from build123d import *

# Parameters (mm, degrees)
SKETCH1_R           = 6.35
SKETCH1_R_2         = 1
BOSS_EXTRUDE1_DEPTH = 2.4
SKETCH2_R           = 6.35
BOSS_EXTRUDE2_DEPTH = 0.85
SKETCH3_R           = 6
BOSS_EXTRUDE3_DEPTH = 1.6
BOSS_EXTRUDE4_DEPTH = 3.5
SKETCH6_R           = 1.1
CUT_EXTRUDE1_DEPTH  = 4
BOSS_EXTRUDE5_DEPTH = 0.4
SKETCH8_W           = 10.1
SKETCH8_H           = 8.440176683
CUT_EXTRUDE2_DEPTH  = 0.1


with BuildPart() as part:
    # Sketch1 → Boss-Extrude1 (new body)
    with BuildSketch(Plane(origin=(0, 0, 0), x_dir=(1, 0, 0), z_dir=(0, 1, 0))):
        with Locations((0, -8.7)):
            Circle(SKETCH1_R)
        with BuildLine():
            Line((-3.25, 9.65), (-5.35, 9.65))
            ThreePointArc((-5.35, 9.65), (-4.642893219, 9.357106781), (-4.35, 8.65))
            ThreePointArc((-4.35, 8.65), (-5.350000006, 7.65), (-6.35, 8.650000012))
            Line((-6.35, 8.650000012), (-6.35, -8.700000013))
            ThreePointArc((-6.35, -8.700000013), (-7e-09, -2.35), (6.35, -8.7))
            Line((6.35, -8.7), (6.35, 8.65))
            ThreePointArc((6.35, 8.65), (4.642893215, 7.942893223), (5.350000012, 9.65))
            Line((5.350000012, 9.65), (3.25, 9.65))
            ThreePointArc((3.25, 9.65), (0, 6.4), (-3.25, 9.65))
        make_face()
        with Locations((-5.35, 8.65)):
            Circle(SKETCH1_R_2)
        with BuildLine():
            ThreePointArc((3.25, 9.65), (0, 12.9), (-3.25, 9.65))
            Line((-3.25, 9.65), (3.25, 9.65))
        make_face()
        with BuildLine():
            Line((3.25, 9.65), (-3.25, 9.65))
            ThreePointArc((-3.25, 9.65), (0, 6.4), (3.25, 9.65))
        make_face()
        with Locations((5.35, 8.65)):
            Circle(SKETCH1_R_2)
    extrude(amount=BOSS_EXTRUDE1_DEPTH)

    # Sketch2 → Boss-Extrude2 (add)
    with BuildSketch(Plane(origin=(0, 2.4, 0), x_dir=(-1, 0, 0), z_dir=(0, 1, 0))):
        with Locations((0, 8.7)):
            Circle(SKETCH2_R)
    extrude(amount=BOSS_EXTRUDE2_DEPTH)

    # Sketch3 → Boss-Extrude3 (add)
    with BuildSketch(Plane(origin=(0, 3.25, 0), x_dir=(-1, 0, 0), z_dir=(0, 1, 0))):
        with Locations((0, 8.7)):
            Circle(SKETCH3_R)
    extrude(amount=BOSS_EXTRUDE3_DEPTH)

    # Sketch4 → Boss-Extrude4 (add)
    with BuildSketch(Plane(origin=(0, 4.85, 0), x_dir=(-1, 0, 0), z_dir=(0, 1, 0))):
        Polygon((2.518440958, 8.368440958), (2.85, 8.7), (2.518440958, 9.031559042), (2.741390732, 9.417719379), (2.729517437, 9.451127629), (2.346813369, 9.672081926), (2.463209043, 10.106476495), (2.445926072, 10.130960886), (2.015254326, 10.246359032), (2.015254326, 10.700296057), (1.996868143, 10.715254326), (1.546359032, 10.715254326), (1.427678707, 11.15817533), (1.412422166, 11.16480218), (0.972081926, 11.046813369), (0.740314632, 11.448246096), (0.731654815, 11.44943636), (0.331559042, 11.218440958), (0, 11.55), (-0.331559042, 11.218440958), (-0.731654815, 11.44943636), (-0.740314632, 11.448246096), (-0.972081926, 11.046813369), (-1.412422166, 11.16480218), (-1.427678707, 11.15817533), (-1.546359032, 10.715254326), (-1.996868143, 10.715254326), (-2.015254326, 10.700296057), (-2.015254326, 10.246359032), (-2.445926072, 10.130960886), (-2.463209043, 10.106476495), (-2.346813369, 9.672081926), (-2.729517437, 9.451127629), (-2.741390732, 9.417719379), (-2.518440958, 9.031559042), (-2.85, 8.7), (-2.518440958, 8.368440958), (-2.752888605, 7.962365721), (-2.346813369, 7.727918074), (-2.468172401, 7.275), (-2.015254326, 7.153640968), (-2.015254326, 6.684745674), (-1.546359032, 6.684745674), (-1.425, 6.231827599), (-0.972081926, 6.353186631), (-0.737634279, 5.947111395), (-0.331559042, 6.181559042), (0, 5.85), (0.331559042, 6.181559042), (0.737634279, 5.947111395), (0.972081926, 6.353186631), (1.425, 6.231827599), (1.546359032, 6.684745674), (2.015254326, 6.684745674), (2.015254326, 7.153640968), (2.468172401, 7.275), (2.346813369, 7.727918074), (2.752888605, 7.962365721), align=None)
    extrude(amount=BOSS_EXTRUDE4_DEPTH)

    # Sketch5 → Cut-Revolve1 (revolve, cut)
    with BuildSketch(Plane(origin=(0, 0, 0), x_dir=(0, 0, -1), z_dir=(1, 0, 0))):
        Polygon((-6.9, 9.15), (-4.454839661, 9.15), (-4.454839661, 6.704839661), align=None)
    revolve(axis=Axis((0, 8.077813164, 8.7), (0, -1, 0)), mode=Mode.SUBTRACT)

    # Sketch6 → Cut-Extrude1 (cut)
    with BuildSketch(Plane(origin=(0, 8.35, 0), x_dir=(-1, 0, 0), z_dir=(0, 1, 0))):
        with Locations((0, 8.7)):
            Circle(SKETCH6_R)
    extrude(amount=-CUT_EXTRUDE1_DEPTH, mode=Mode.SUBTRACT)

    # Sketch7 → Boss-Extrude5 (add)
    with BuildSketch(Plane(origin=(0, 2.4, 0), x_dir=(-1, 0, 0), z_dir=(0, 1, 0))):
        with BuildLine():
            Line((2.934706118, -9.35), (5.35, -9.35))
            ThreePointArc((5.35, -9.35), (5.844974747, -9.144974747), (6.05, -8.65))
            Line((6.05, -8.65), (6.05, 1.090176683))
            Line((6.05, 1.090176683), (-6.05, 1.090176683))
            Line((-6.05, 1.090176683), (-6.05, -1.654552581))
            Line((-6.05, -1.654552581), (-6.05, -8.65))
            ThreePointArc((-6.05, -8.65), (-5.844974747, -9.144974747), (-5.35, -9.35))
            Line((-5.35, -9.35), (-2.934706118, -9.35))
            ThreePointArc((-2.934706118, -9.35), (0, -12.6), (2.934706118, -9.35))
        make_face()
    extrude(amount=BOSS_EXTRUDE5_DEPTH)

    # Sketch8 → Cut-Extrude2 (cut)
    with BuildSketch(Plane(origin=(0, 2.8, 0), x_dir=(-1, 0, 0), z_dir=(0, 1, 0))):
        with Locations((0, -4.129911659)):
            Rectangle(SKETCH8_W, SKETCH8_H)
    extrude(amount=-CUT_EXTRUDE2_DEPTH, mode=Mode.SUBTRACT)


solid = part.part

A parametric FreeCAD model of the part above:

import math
import FreeCAD as App
import Part
import Sketcher
Q = App.Units.Quantity

doc = App.newDocument("Part")
body = doc.addObject("PartDesign::Body", "Body")

sketch1 = body.newObject("Sketcher::SketchObject", "Sketch")
sketch1.AttachmentSupport = (doc.getObject("XZ_Plane"), [""])
sketch1.MapMode = "FlatFace"
sketch1.addGeometry([
    Part.ArcOfCircle(Part.Circle(App.Vector(-5.3, -8.7, 0), App.Vector(0, 0, 1), 1), math.radians(-180), math.radians(-90)),
    Part.LineSegment(App.Vector(-6.3, -8.7, 0), App.Vector(-6.3, 8.7, 0)),
    Part.ArcOfCircle(Part.Circle(App.Vector(0, 8.7, 0), App.Vector(0, 0, 1), 6.3), math.radians(0), math.radians(180)),
    Part.LineSegment(App.Vector(6.3, 8.7, 0), App.Vector(6.3, -8.7, 0)),
    Part.ArcOfCircle(Part.Circle(App.Vector(5.3, -8.7, 0), App.Vector(0, 0, 1), 1), math.radians(-90), math.radians(0)),
    Part.LineSegment(App.Vector(5.4, -9.7, 0), App.Vector(3.2, -9.7, 0)),
    Part.ArcOfCircle(Part.Circle(App.Vector(0, -9.7, 0), App.Vector(0, 0, 1), 3.2), math.radians(180), math.radians(360)),
    Part.LineSegment(App.Vector(-3.2, -9.7, 0), App.Vector(-5.3, -9.7, 0)),
], False)
sketch1.addConstraint([
    Sketcher.Constraint("Tangent", 0, 1, 1, 1),
    Sketcher.Constraint("Tangent", 1, 2, 2, 2),
    Sketcher.Constraint("Tangent", 2, 1, 3, 1),
    Sketcher.Constraint("Tangent", 3, 2, 4, 2),
    Sketcher.Constraint("Tangent", 4, 1, 5, 1),
    Sketcher.Constraint("Coincident", 5, 2, 6, 2),
    Sketcher.Constraint("Coincident", 6, 1, 7, 1),
    Sketcher.Constraint("Tangent", 7, 2, 0, 2),
    Sketcher.Constraint("Vertical", 1),
    Sketcher.Constraint("Vertical", 3),
    Sketcher.Constraint("Horizontal", 5),
    Sketcher.Constraint("Horizontal", 7),
    Sketcher.Constraint("Equal", 0, 4),
    Sketcher.Constraint("Symmetric", 0, 3, 4, 3, -2),
    Sketcher.Constraint("PointOnObject", 6, 3, -2),
    Sketcher.Constraint("Horizontal", 6, 3, 4, 1),
    Sketcher.Constraint("Radius", 0, 1.0),
    Sketcher.Constraint("Radius", 2, 6.35),
    Sketcher.Constraint("Radius", 6, 3.25),
    Sketcher.Constraint("DistanceY", 1, 1, 1, 2, 17.35),
    Sketcher.Constraint("DistanceY", -1, 1, 2, 3, 8.7),
])
pad1 = body.newObject("PartDesign::Pad", "Pad")
pad1.Profile = sketch1
pad1.Length = 2.4
pad1.Reversed = True

sketch2 = body.newObject("Sketcher::SketchObject", "Sketch001")
sketch2.AttachmentSupport = (doc.getObject("XZ_Plane"), [""])
sketch2.MapMode = "FlatFace"
sketch2.AttachmentOffset = App.Placement(App.Vector(0, 0, -2.4), App.Rotation())
sketch2.addGeometry(Part.Circle(App.Vector(0, 9, 0), App.Vector(0, 0, 1), 6), False)
sketch2.addConstraint([
    Sketcher.Constraint("PointOnObject", 0, 3, -2),
    Sketcher.Constraint("Diameter", 0, 12.7),
    Sketcher.Constraint("DistanceY", -1, 1, 0, 3, 8.7),
])
pad2 = body.newObject("PartDesign::Pad", "Pad001")
pad2.Profile = sketch2
pad2.Length = 0.85
pad2.Reversed = True

sketch3 = body.newObject("Sketcher::SketchObject", "Sketch002")
sketch3.AttachmentSupport = (doc.getObject("XZ_Plane"), [""])
sketch3.MapMode = "FlatFace"
sketch3.AttachmentOffset = App.Placement(App.Vector(0, 0, -3.25), App.Rotation())
sketch3.addGeometry(Part.Circle(App.Vector(0, 9, 0), App.Vector(0, 0, 1), 6), False)
sketch3.addConstraint([
    Sketcher.Constraint("PointOnObject", 0, 3, -2),
    Sketcher.Constraint("Diameter", 0, 12.0),
    Sketcher.Constraint("DistanceY", -1, 1, 0, 3, 8.7),
])
pad3 = body.newObject("PartDesign::Pad", "Pad002")
pad3.Profile = sketch3
pad3.Length = 1.6
pad3.Reversed = True

sketch4 = body.newObject("Sketcher::SketchObject", "Sketch003")
sketch4.AttachmentSupport = (doc.getObject("XZ_Plane"), [""])
sketch4.MapMode = "FlatFace"
sketch4.AttachmentOffset = App.Placement(App.Vector(0, 0, -4.85), App.Rotation())
sketch4.addGeometry([
    Part.LineSegment(App.Vector(-2.518, 8.368, 0), App.Vector(-2.85, 8.7, 0)),
    Part.LineSegment(App.Vector(-2.85, 8.7, 0), App.Vector(-2.518, 9.032, 0)),
    Part.LineSegment(App.Vector(-2.518, 9.032, 0), App.Vector(-2.741, 9.418, 0)),
    Part.LineSegment(App.Vector(-2.741, 9.418, 0), App.Vector(-2.73, 9.451, 0)),
    Part.LineSegment(App.Vector(-2.73, 9.451, 0), App.Vector(-2.347, 9.672, 0)),
    Part.LineSegment(App.Vector(-2.347, 9.672, 0), App.Vector(-2.463, 10.106, 0)),
    Part.LineSegment(App.Vector(-2.463, 10.106, 0), App.Vector(-2.446, 10.131, 0)),
    Part.LineSegment(App.Vector(-2.446, 10.131, 0), App.Vector(-2.015, 10.246, 0)),
    Part.LineSegment(App.Vector(-2.015, 10.246, 0), App.Vector(-2.015, 10.7, 0)),
    Part.LineSegment(App.Vector(-2.015, 10.7, 0), App.Vector(-1.997, 10.715, 0)),
    Part.LineSegment(App.Vector(-1.997, 10.715, 0), App.Vector(-1.546, 10.715, 0)),
    Part.LineSegment(App.Vector(-1.546, 10.715, 0), App.Vector(-1.428, 11.158, 0)),
    Part.LineSegment(App.Vector(-1.428, 11.158, 0), App.Vector(-1.412, 11.165, 0)),
    Part.LineSegment(App.Vector(-1.412, 11.165, 0), App.Vector(-0.972, 11.047, 0)),
    Part.LineSegment(App.Vector(-0.972, 11.047, 0), App.Vector(-0.74, 11.448, 0)),
    Part.LineSegment(App.Vector(-0.74, 11.448, 0), App.Vector(-0.732, 11.449, 0)),
    Part.LineSegment(App.Vector(-0.732, 11.449, 0), App.Vector(-0.332, 11.218, 0)),
    Part.LineSegment(App.Vector(-0.332, 11.218, 0), App.Vector(0, 11.55, 0)),
    Part.LineSegment(App.Vector(0, 11.55, 0), App.Vector(0.332, 11.218, 0)),
    Part.LineSegment(App.Vector(0.332, 11.218, 0), App.Vector(0.732, 11.449, 0)),
    Part.LineSegment(App.Vector(0.732, 11.449, 0), App.Vector(0.74, 11.448, 0)),
    Part.LineSegment(App.Vector(0.74, 11.448, 0), App.Vector(0.972, 11.047, 0)),
    Part.LineSegment(App.Vector(0.972, 11.047, 0), App.Vector(1.412, 11.165, 0)),
    Part.LineSegment(App.Vector(1.412, 11.165, 0), App.Vector(1.428, 11.158, 0)),
    Part.LineSegment(App.Vector(1.428, 11.158, 0), App.Vector(1.546, 10.715, 0)),
    Part.LineSegment(App.Vector(1.546, 10.715, 0), App.Vector(1.997, 10.715, 0)),
    Part.LineSegment(App.Vector(1.997, 10.715, 0), App.Vector(2.015, 10.7, 0)),
    Part.LineSegment(App.Vector(2.015, 10.7, 0), App.Vector(2.015, 10.246, 0)),
    Part.LineSegment(App.Vector(2.015, 10.246, 0), App.Vector(2.446, 10.131, 0)),
    Part.LineSegment(App.Vector(2.446, 10.131, 0), App.Vector(2.463, 10.106, 0)),
    Part.LineSegment(App.Vector(2.463, 10.106, 0), App.Vector(2.347, 9.672, 0)),
    Part.LineSegment(App.Vector(2.347, 9.672, 0), App.Vector(2.73, 9.451, 0)),
    Part.LineSegment(App.Vector(2.73, 9.451, 0), App.Vector(2.741, 9.418, 0)),
    Part.LineSegment(App.Vector(2.741, 9.418, 0), App.Vector(2.518, 9.032, 0)),
    Part.LineSegment(App.Vector(2.518, 9.032, 0), App.Vector(2.85, 8.7, 0)),
    Part.LineSegment(App.Vector(2.85, 8.7, 0), App.Vector(2.518, 8.368, 0)),
    Part.LineSegment(App.Vector(2.518, 8.368, 0), App.Vector(2.753, 7.962, 0)),
    Part.LineSegment(App.Vector(2.753, 7.962, 0), App.Vector(2.347, 7.728, 0)),
    Part.LineSegment(App.Vector(2.347, 7.728, 0), App.Vector(2.468, 7.275, 0)),
    Part.LineSegment(App.Vector(2.468, 7.275, 0), App.Vector(2.015, 7.154, 0)),
    Part.LineSegment(App.Vector(2.015, 7.154, 0), App.Vector(2.015, 6.685, 0)),
    Part.LineSegment(App.Vector(2.015, 6.685, 0), App.Vector(1.546, 6.685, 0)),
    Part.LineSegment(App.Vector(1.546, 6.685, 0), App.Vector(1.425, 6.232, 0)),
    Part.LineSegment(App.Vector(1.425, 6.232, 0), App.Vector(0.972, 6.353, 0)),
    Part.LineSegment(App.Vector(0.972, 6.353, 0), App.Vector(0.738, 5.947, 0)),
    Part.LineSegment(App.Vector(0.738, 5.947, 0), App.Vector(0.332, 6.182, 0)),
    Part.LineSegment(App.Vector(0.332, 6.182, 0), App.Vector(0, 5.85, 0)),
    Part.LineSegment(App.Vector(0, 5.85, 0), App.Vector(-0.332, 6.182, 0)),
    Part.LineSegment(App.Vector(-0.332, 6.182, 0), App.Vector(-0.738, 5.947, 0)),
    Part.LineSegment(App.Vector(-0.738, 5.947, 0), App.Vector(-0.972, 6.353, 0)),
    Part.LineSegment(App.Vector(-0.972, 6.353, 0), App.Vector(-1.425, 6.232, 0)),
    Part.LineSegment(App.Vector(-1.425, 6.232, 0), App.Vector(-1.546, 6.685, 0)),
    Part.LineSegment(App.Vector(-1.546, 6.685, 0), App.Vector(-2.015, 6.685, 0)),
    Part.LineSegment(App.Vector(-2.015, 6.685, 0), App.Vector(-2.015, 7.154, 0)),
    Part.LineSegment(App.Vector(-2.015, 7.154, 0), App.Vector(-2.468, 7.275, 0)),
    Part.LineSegment(App.Vector(-2.468, 7.275, 0), App.Vector(-2.347, 7.728, 0)),
    Part.LineSegment(App.Vector(-2.347, 7.728, 0), App.Vector(-2.753, 7.962, 0)),
    Part.LineSegment(App.Vector(-2.753, 7.962, 0), App.Vector(-2.518, 8.368, 0)),
], False)
sketch4.addConstraint([
    Sketcher.Constraint("Coincident", 0, 2, 1, 1),
    Sketcher.Constraint("Coincident", 1, 2, 2, 1),
    Sketcher.Constraint("Coincident", 2, 2, 3, 1),
    Sketcher.Constraint("Coincident", 3, 2, 4, 1),
    Sketcher.Constraint("Coincident", 4, 2, 5, 1),
    Sketcher.Constraint("Coincident", 5, 2, 6, 1),
    Sketcher.Constraint("Coincident", 6, 2, 7, 1),
    Sketcher.Constraint("Coincident", 7, 2, 8, 1),
    Sketcher.Constraint("Coincident", 8, 2, 9, 1),
    Sketcher.Constraint("Coincident", 9, 2, 10, 1),
    Sketcher.Constraint("Coincident", 10, 2, 11, 1),
    Sketcher.Constraint("Coincident", 11, 2, 12, 1),
    Sketcher.Constraint("Coincident", 12, 2, 13, 1),
    Sketcher.Constraint("Coincident", 13, 2, 14, 1),
    Sketcher.Constraint("Coincident", 14, 2, 15, 1),
    Sketcher.Constraint("Coincident", 15, 2, 16, 1),
    Sketcher.Constraint("Coincident", 16, 2, 17, 1),
    Sketcher.Constraint("Coincident", 17, 2, 18, 1),
    Sketcher.Constraint("Coincident", 18, 2, 19, 1),
    Sketcher.Constraint("Coincident", 19, 2, 20, 1),
    Sketcher.Constraint("Coincident", 20, 2, 21, 1),
    Sketcher.Constraint("Coincident", 21, 2, 22, 1),
    Sketcher.Constraint("Coincident", 22, 2, 23, 1),
    Sketcher.Constraint("Coincident", 23, 2, 24, 1),
    Sketcher.Constraint("Coincident", 24, 2, 25, 1),
    Sketcher.Constraint("Coincident", 25, 2, 26, 1),
    Sketcher.Constraint("Coincident", 26, 2, 27, 1),
    Sketcher.Constraint("Coincident", 27, 2, 28, 1),
    Sketcher.Constraint("Coincident", 28, 2, 29, 1),
    Sketcher.Constraint("Coincident", 29, 2, 30, 1),
    Sketcher.Constraint("Coincident", 30, 2, 31, 1),
    Sketcher.Constraint("Coincident", 31, 2, 32, 1),
    Sketcher.Constraint("Coincident", 32, 2, 33, 1),
    Sketcher.Constraint("Coincident", 33, 2, 34, 1),
    Sketcher.Constraint("Coincident", 34, 2, 35, 1),
    Sketcher.Constraint("Coincident", 35, 2, 36, 1),
    Sketcher.Constraint("Coincident", 36, 2, 37, 1),
    Sketcher.Constraint("Coincident", 37, 2, 38, 1),
    Sketcher.Constraint("Coincident", 38, 2, 39, 1),
    Sketcher.Constraint("Coincident", 39, 2, 40, 1),
    Sketcher.Constraint("Coincident", 40, 2, 41, 1),
    Sketcher.Constraint("Coincident", 41, 2, 42, 1),
    Sketcher.Constraint("Coincident", 42, 2, 43, 1),
    Sketcher.Constraint("Coincident", 43, 2, 44, 1),
    Sketcher.Constraint("Coincident", 44, 2, 45, 1),
    Sketcher.Constraint("Coincident", 45, 2, 46, 1),
    Sketcher.Constraint("Coincident", 46, 2, 47, 1),
    Sketcher.Constraint("Coincident", 47, 2, 48, 1),
    Sketcher.Constraint("Coincident", 48, 2, 49, 1),
    Sketcher.Constraint("Coincident", 49, 2, 50, 1),
    Sketcher.Constraint("Coincident", 50, 2, 51, 1),
    Sketcher.Constraint("Coincident", 51, 2, 52, 1),
    Sketcher.Constraint("Coincident", 52, 2, 53, 1),
    Sketcher.Constraint("Coincident", 53, 2, 54, 1),
    Sketcher.Constraint("Coincident", 54, 2, 55, 1),
    Sketcher.Constraint("Coincident", 55, 2, 56, 1),
    Sketcher.Constraint("Coincident", 56, 2, 57, 1),
    Sketcher.Constraint("Coincident", 57, 2, 0, 1),
    Sketcher.Constraint("Vertical", 8),
    Sketcher.Constraint("Horizontal", 10),
    Sketcher.Constraint("Horizontal", 25),
    Sketcher.Constraint("Vertical", 27),
    Sketcher.Constraint("Vertical", 40),
    Sketcher.Constraint("Horizontal", 41),
    Sketcher.Constraint("Horizontal", 52),
    Sketcher.Constraint("Vertical", 53),
    Sketcher.Constraint("Symmetric", 16, 2, 18, 2, -2),
    Sketcher.Constraint("Symmetric", 15, 2, 19, 2, -2),
    Sketcher.Constraint("Symmetric", 14, 2, 20, 2, -2),
    Sketcher.Constraint("Symmetric", 13, 2, 21, 2, -2),
    Sketcher.Constraint("Symmetric", 12, 2, 22, 2, -2),
    Sketcher.Constraint("Symmetric", 11, 2, 23, 2, -2),
    Sketcher.Constraint("Symmetric", 10, 2, 24, 2, -2),
    Sketcher.Constraint("Symmetric", 8, 2, 26, 2, -2),
    Sketcher.Constraint("Symmetric", 6, 2, 28, 2, -2),
    Sketcher.Constraint("Symmetric", 5, 2, 29, 2, -2),
    Sketcher.Constraint("Symmetric", 4, 2, 30, 2, -2),
    Sketcher.Constraint("Symmetric", 3, 2, 31, 2, -2),
    Sketcher.Constraint("Symmetric", 2, 2, 32, 2, -2),
    Sketcher.Constraint("Symmetric", 1, 2, 33, 2, -2),
    Sketcher.Constraint("Symmetric", 0, 2, 34, 2, -2),
    Sketcher.Constraint("Symmetric", 45, 2, 47, 2, -2),
    Sketcher.Constraint("Symmetric", 44, 2, 48, 2, -2),
    Sketcher.Constraint("Symmetric", 43, 2, 49, 2, -2),
    Sketcher.Constraint("Symmetric", 42, 2, 50, 2, -2),
    Sketcher.Constraint("Symmetric", 41, 2, 51, 2, -2),
    Sketcher.Constraint("Symmetric", 39, 2, 53, 2, -2),
    Sketcher.Constraint("Symmetric", 38, 2, 54, 2, -2),
    Sketcher.Constraint("Symmetric", 37, 2, 55, 2, -2),
    Sketcher.Constraint("Symmetric", 36, 2, 56, 2, -2),
    Sketcher.Constraint("Symmetric", 35, 2, 57, 2, -2),
    Sketcher.Constraint("PointOnObject", 17, 2, -2),
    Sketcher.Constraint("PointOnObject", 46, 2, -2),
    Sketcher.Constraint("Perpendicular", 0, 1),
    Sketcher.Constraint("Perpendicular", 2, 4),
    Sketcher.Constraint("Perpendicular", 5, 7),
    Sketcher.Constraint("Perpendicular", 11, 13),
    Sketcher.Constraint("Perpendicular", 14, 16),
    Sketcher.Constraint("Parallel", 1, 17),
    Sketcher.Constraint("Perpendicular", 17, 18),
    Sketcher.Constraint("Parallel", 4, 19),
    Sketcher.Constraint("Parallel", 7, 22),
    Sketcher.Constraint("Parallel", 13, 28),
    Sketcher.Constraint("Parallel", 21, 36),
    Sketcher.Constraint("Perpendicular", 36, 37),
    Sketcher.Constraint("Parallel", 24, 38),
    Sketcher.Constraint("Perpendicular", 38, 39),
    Sketcher.Constraint("Parallel", 30, 42),
    Sketcher.Constraint("Perpendicular", 42, 43),
    Sketcher.Constraint("Parallel", 33, 44),
    Sketcher.Constraint("Perpendicular", 44, 45),
    Sketcher.Constraint("Parallel", 35, 46),
    Sketcher.Constraint("Vertical", 33, 2, 35, 2),
    Sketcher.Constraint("Vertical", 30, 2, 37, 2),
    Sketcher.Constraint("Vertical", 27, 2, 39, 2),
    Sketcher.Constraint("Vertical", 24, 2, 41, 2),
    Sketcher.Constraint("Vertical", 21, 2, 43, 2),
    Sketcher.Constraint("Vertical", 18, 2, 45, 2),
    Sketcher.Constraint("Equal", 10, 25),
    Sketcher.Constraint("Equal", 52, 40),
    Sketcher.Constraint("Equal", 1, 17),
    Sketcher.Constraint("Equal", 35, 36),
    Sketcher.Constraint("Equal", 36, 37),
    Sketcher.Constraint("Equal", 37, 38),
    Sketcher.Constraint("Equal", 38, 39),
    Sketcher.Constraint("Equal", 39, 42),
    Sketcher.Constraint("Equal", 42, 43),
    Sketcher.Constraint("Equal", 43, 44),
    Sketcher.Constraint("Equal", 44, 45),
    Sketcher.Constraint("Angle", 2, Q("120 deg")),
    Sketcher.Constraint("Angle", 5, Q("105 deg")),
    Sketcher.Constraint("DistanceY", -1, 1, 0, 2, 8.7),
    Sketcher.Constraint("DistanceX", 0, 2, -1, 1, 2.85),
    Sketcher.Constraint("DistanceY", -1, 1, 17, 2, 11.55),
    Sketcher.Constraint("DistanceY", -1, 1, 38, 2, 7.275),
    Sketcher.Constraint("Distance", 2, 0.4459),
    Sketcher.Constraint("DistanceX", 10, 1, 10, 2, 0.450509),
    Sketcher.Constraint("DistanceY", 1, 2, 6, 2, 1.099402),
    Sketcher.Constraint("DistanceY", 6, 2, 7, 2, 0.115398),
    Sketcher.Constraint("Distance", 4, 0.441909),
    Sketcher.Constraint("Distance", 5, 0.449718),
    Sketcher.Constraint("Distance", 6, 0.02997),
    Sketcher.Constraint("Distance", 15, 0.008741),
    Sketcher.Constraint("Distance", 16, 0.461991),
    Sketcher.Constraint("DistanceY", 8, 1, 8, 2, 0.453937),
    Sketcher.Constraint("DistanceX", 11, 2, -1, 1, 1.427679),
    Sketcher.Constraint("DistanceY", 8, 2, 9, 2, 0.014958),
    Sketcher.Constraint("DistanceX", 12, 2, 13, 2, 0.44034),
    Sketcher.Constraint("DistanceY", 13, 2, 11, 2, 0.111362),
])
pad4 = body.newObject("PartDesign::Pad", "Pad003")
pad4.Profile = sketch4
pad4.Length = 3.5
pad4.Reversed = True

sketch5 = body.newObject("Sketcher::SketchObject", "Sketch004")
sketch5.AttachmentSupport = (doc.getObject("YZ_Plane"), [""])
sketch5.MapMode = "FlatFace"
sketch5.addGeometry([
    Part.LineSegment(App.Vector(9.2, 4.5, 0), App.Vector(9.2, 6.9, 0)),
    Part.LineSegment(App.Vector(9.2, 6.9, 0), App.Vector(6.7, 4.5, 0)),
    Part.LineSegment(App.Vector(6.7, 4.5, 0), App.Vector(9.2, 4.5, 0)),
], False)
sketch5.addGeometry(Part.LineSegment(App.Vector(9.2, 8.7, 0), App.Vector(6.7, 8.7, 0)), True)
sketch5.addConstraint([
    Sketcher.Constraint("Coincident", 0, 2, 1, 1),
    Sketcher.Constraint("Coincident", 1, 2, 2, 1),
    Sketcher.Constraint("Coincident", 2, 2, 0, 1),
    Sketcher.Constraint("Vertical", 0),
    Sketcher.Constraint("Horizontal", 2),
    Sketcher.Constraint("Horizontal", 3),
    Sketcher.Constraint("Vertical", 2, 2, 3, 1),
    Sketcher.Constraint("Vertical", 1, 2, 3, 2),
    Sketcher.Constraint("Equal", 3, 0),
    Sketcher.Constraint("DistanceY", -1, 1, 0, 2, 6.9),
    Sketcher.Constraint("DistanceY", -1, 1, 3, 1, 8.7),
    Sketcher.Constraint("DistanceX", -1, 1, 0, 2, 9.15),
    Sketcher.Constraint("DistanceX", 2, 1, 2, 2, 2.44516),
])
groove = body.newObject("PartDesign::Groove", "Groove")
groove.Profile = sketch5
groove.ReferenceAxis = (sketch5, ["Axis0"])
groove.Angle = 360

sketch6 = body.newObject("Sketcher::SketchObject", "Sketch005")
sketch6.AttachmentSupport = (doc.getObject("XZ_Plane"), [""])
sketch6.MapMode = "FlatFace"
sketch6.AttachmentOffset = App.Placement(App.Vector(0, 0, -8.35), App.Rotation())
sketch6.addGeometry(Part.Circle(App.Vector(0, 8.7, 0), App.Vector(0, 0, 1), 1.1), False)
sketch6.addConstraint([
    Sketcher.Constraint("PointOnObject", 0, 3, -2),
    Sketcher.Constraint("Diameter", 0, 2.2),
    Sketcher.Constraint("DistanceY", -1, 1, 0, 3, 8.7),
])
pocket1 = body.newObject("PartDesign::Pocket", "Pocket")
pocket1.Profile = sketch6
pocket1.Length = 4
pocket1.Reversed = True

sketch7 = body.newObject("Sketcher::SketchObject", "Sketch006")
sketch7.AttachmentSupport = (doc.getObject("XZ_Plane"), [""])
sketch7.MapMode = "FlatFace"
sketch7.AttachmentOffset = App.Placement(App.Vector(0, 0, -2.4), App.Rotation())
sketch7.addGeometry([
    Part.LineSegment(App.Vector(-2.9, -9.3, 0), App.Vector(-5.3, -9.3, 0)),
    Part.ArcOfCircle(Part.Circle(App.Vector(-5.4, -8.7, 0), App.Vector(0, 0, 1), 0.7), math.radians(180), math.radians(270)),
    Part.LineSegment(App.Vector(-6, -8.7, 0), App.Vector(-6, 1.1, 0)),
    Part.LineSegment(App.Vector(-6, 1.1, 0), App.Vector(6, 1.1, 0)),
    Part.LineSegment(App.Vector(6, 1.1, 0), App.Vector(6, -8.7, 0)),
    Part.ArcOfCircle(Part.Circle(App.Vector(5.4, -8.7, 0), App.Vector(0, 0, 1), 0.7), math.radians(-90), math.radians(0)),
    Part.LineSegment(App.Vector(5.3, -9.3, 0), App.Vector(2.9, -9.3, 0)),
    Part.ArcOfCircle(Part.Circle(App.Vector(0, -9.7, 0), App.Vector(0, 0, 1), 3), math.radians(174), math.radians(366)),
], False)
sketch7.addConstraint([
    Sketcher.Constraint("Tangent", 0, 2, 1, 2),
    Sketcher.Constraint("Tangent", 1, 1, 2, 1),
    Sketcher.Constraint("Coincident", 2, 2, 3, 1),
    Sketcher.Constraint("Coincident", 3, 2, 4, 1),
    Sketcher.Constraint("Tangent", 4, 2, 5, 2),
    Sketcher.Constraint("Tangent", 5, 1, 6, 1),
    Sketcher.Constraint("Coincident", 6, 2, 7, 2),
    Sketcher.Constraint("Coincident", 7, 1, 0, 1),
    Sketcher.Constraint("Horizontal", 0),
    Sketcher.Constraint("Vertical", 2),
    Sketcher.Constraint("Horizontal", 3),
    Sketcher.Constraint("Vertical", 4),
    Sketcher.Constraint("Horizontal", 6),
    Sketcher.Constraint("Equal", 1, 5),
    Sketcher.Constraint("Symmetric", 1, 3, 5, 3, -2),
    Sketcher.Constraint("PointOnObject", 7, 3, -2),
    Sketcher.Constraint("Radius", 1, 0.7),
    Sketcher.Constraint("Radius", 7, 2.95),
    Sketcher.Constraint("DistanceX", 3, 1, 3, 2, 12.1),
    Sketcher.Constraint("DistanceY", 7, 3, 1, 3, 1.0),
    Sketcher.Constraint("DistanceY", 1, 3, -1, 1, 8.65),
    Sketcher.Constraint("DistanceY", 2, 1, 2, 2, 9.740177),
])
pad5 = body.newObject("PartDesign::Pad", "Pad004")
pad5.Profile = sketch7
pad5.Length = 0.4
pad5.Reversed = True

sketch8 = body.newObject("Sketcher::SketchObject", "Sketch007")
sketch8.AttachmentSupport = (doc.getObject("XZ_Plane"), [""])
sketch8.MapMode = "FlatFace"
sketch8.AttachmentOffset = App.Placement(App.Vector(0, 0, -2.8), App.Rotation())
sketch8.addGeometry([
    Part.LineSegment(App.Vector(5, 0, 0), App.Vector(5, -8, 0)),
    Part.LineSegment(App.Vector(5, -8, 0), App.Vector(-5, -8, 0)),
    Part.LineSegment(App.Vector(-5, -8, 0), App.Vector(-5, 0, 0)),
    Part.LineSegment(App.Vector(-5, 0, 0), App.Vector(5, 0, 0)),
], False)
sketch8.addConstraint([
    Sketcher.Constraint("Coincident", 0, 2, 1, 1),
    Sketcher.Constraint("Coincident", 1, 2, 2, 1),
    Sketcher.Constraint("Coincident", 2, 2, 3, 1),
    Sketcher.Constraint("Coincident", 3, 2, 0, 1),
    Sketcher.Constraint("Vertical", 0),
    Sketcher.Constraint("Horizontal", 1),
    Sketcher.Constraint("Vertical", 2),
    Sketcher.Constraint("Horizontal", 3),
    Sketcher.Constraint("DistanceX", 1, 2, 1, 1, 10.1),
    Sketcher.Constraint("DistanceX", -1, 1, 0, 2, 5.05),
    Sketcher.Constraint("DistanceY", 0, 2, -1, 1, 8.35),
    Sketcher.Constraint("DistanceY", 0, 2, 0, 1, 8.440177),
])
pocket2 = body.newObject("PartDesign::Pocket", "Pocket001")
pocket2.Profile = sketch8
pocket2.Length = 0.1
pocket2.Reversed = True

doc.recompute()
